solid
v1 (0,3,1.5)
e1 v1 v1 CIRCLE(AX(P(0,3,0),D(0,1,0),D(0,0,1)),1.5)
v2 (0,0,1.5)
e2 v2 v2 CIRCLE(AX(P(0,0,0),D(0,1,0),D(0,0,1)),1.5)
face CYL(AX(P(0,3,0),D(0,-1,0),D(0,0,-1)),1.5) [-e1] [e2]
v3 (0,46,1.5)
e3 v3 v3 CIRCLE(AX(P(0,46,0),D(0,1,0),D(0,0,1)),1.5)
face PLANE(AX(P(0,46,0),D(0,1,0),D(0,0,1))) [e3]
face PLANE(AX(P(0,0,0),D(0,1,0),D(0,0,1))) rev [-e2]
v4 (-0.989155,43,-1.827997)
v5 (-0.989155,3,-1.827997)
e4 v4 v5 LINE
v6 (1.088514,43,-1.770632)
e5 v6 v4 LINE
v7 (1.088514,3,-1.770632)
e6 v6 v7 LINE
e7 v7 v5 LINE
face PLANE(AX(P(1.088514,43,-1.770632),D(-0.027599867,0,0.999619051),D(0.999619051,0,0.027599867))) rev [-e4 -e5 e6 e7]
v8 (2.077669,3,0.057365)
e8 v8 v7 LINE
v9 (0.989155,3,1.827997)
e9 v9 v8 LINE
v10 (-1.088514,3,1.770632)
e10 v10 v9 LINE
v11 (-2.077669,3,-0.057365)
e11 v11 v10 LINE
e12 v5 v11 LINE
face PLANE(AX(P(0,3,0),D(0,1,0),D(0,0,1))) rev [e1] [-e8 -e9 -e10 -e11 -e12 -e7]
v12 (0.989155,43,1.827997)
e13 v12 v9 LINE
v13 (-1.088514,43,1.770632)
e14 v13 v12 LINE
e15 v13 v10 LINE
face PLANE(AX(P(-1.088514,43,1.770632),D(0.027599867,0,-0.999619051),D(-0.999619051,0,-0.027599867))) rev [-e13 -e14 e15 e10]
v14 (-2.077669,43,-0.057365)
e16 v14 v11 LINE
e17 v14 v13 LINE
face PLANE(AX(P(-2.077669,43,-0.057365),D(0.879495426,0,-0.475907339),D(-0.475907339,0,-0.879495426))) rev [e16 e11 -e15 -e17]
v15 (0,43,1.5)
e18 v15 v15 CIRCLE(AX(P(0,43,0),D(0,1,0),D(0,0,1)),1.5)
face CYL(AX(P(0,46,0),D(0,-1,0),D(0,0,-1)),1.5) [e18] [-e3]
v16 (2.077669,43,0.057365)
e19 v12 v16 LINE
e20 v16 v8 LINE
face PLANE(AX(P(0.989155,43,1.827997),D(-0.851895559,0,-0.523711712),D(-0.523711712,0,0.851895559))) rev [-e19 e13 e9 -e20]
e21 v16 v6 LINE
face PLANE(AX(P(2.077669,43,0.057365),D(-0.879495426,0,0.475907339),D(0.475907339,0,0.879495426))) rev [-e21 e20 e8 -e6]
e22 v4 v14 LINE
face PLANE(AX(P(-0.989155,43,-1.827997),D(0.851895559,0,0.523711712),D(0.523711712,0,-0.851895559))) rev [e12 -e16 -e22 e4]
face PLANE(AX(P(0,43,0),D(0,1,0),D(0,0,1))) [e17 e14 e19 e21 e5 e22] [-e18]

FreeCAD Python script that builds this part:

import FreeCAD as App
import Part
import Sketcher

V = App.Vector
Q = App.Units.Quantity

doc = App.newDocument("Part")
params = doc.addObject("Spreadsheet::Sheet", "Params")
for row, (alias, value) in enumerate([
    ("sketch1_diameter", "3 mm"),
    ("pad1_length", "3 mm"),
    ("pad2_length", "40 mm"),
    ("sketch3_diameter", "3 mm"),
    ("pad3_length", "3 mm"),
], start=1):
    params.set(f"A{row}", alias)
    params.set(f"B{row}", "=" + value)
    params.setAlias(f"B{row}", alias)

body = doc.addObject("PartDesign::Body", "Body")

# Sketch on XZ plane
sketch1 = body.newObject("Sketcher::SketchObject", "Sketch")
sketch1.AttachmentSupport = (doc.getObject("XZ_Plane"), [""])
sketch1.MapMode = "FlatFace"
sketch1.addGeometry(Part.Circle(V(0, 0, 0), V(0, 0, 1), 1.5), False)
sketch1.addConstraint([
    Sketcher.Constraint("Coincident", 0, 3, -1, 1),
    Sketcher.Constraint("Diameter", 0, Q("3 mm")),
])
sketch1.setExpression("Constraints[1]", "Params.sketch1_diameter")
pad1 = body.newObject("PartDesign::Pad", "Pad")
pad1.Profile = sketch1
pad1.setExpression("Length", "Params.pad1_length")
pad1.Reversed = True

# Sketch on XZ plane
sketch2 = body.newObject("Sketcher::SketchObject", "Sketch001")
sketch2.AttachmentSupport = (doc.getObject("XZ_Plane"), [""])
sketch2.MapMode = "FlatFace"
sketch2.AttachmentOffset = App.Placement(V(0, 0, -3), App.Rotation())
sketch2.addGeometry([
    Part.LineSegment(V(-0.989155, -1.827997, 0), V(-2.077669, -0.057365, 0)),  # 0
    Part.LineSegment(V(-2.077669, -0.057365, 0), V(-1.088514, 1.770632, 0)),  # 1
    Part.LineSegment(V(-1.088514, 1.770632, 0), V(0.989155, 1.827997, 0)),  # 2
    Part.LineSegment(V(0.989155, 1.827997, 0), V(2.077669, 0.057365, 0)),  # 3
    Part.LineSegment(V(2.077669, 0.057365, 0), V(1.088514, -1.770632, 0)),  # 4
    Part.LineSegment(V(1.088514, -1.770632, 0), V(-0.989155, -1.827997, 0)),  # 5
], False)
sketch2.addConstraint([
    Sketcher.Constraint("Coincident", 0, 2, 1, 1),
    Sketcher.Constraint("Coincident", 1, 2, 2, 1),
    Sketcher.Constraint("Coincident", 2, 2, 3, 1),
    Sketcher.Constraint("Coincident", 3, 2, 4, 1),
    Sketcher.Constraint("Coincident", 4, 2, 5, 1),
    Sketcher.Constraint("Coincident", 5, 2, 0, 1),
    Sketcher.Constraint("Symmetric", 0, 2, 3, 2, -1, 1),
    Sketcher.Constraint("Symmetric", 1, 2, 4, 2, -1, 1),
    Sketcher.Constraint("Symmetric", 2, 2, 5, 2, -1, 1),
    Sketcher.Constraint("Equal", 0, 1),
    Sketcher.Constraint("Equal", 1, 2),
    Sketcher.Constraint("Distance", 0, Q("2.078461 mm")),
    Sketcher.Constraint("DistanceX", 0, 2, -1, 1, Q("2.077669 mm")),
    Sketcher.Constraint("DistanceY", -1, 1, 1, 2, Q("1.770632 mm")),
    Sketcher.Constraint("DistanceY", 3, 2, 2, 2, Q("1.770632 mm")),
])
pad2 = body.newObject("PartDesign::Pad", "Pad001")
pad2.Profile = sketch2
pad2.setExpression("Length", "Params.pad2_length")
pad2.Reversed = True

# Sketch on XZ plane
sketch3 = body.newObject("Sketcher::SketchObject", "Sketch002")
sketch3.AttachmentSupport = (doc.getObject("XZ_Plane"), [""])
sketch3.MapMode = "FlatFace"
sketch3.AttachmentOffset = App.Placement(V(0, 0, -43), App.Rotation())
sketch3.addGeometry(Part.Circle(V(0, 0, 0), V(0, 0, 1), 1.5), False)
sketch3.addConstraint([
    Sketcher.Constraint("Coincident", 0, 3, -1, 1),
    Sketcher.Constraint("Diameter", 0, Q("3 mm")),
])
sketch3.setExpression("Constraints[1]", "Params.sketch3_diameter")
pad3 = body.newObject("PartDesign::Pad", "Pad002")
pad3.Profile = sketch3
pad3.setExpression("Length", "Params.pad3_length")
pad3.Reversed = True

doc.recompute()
